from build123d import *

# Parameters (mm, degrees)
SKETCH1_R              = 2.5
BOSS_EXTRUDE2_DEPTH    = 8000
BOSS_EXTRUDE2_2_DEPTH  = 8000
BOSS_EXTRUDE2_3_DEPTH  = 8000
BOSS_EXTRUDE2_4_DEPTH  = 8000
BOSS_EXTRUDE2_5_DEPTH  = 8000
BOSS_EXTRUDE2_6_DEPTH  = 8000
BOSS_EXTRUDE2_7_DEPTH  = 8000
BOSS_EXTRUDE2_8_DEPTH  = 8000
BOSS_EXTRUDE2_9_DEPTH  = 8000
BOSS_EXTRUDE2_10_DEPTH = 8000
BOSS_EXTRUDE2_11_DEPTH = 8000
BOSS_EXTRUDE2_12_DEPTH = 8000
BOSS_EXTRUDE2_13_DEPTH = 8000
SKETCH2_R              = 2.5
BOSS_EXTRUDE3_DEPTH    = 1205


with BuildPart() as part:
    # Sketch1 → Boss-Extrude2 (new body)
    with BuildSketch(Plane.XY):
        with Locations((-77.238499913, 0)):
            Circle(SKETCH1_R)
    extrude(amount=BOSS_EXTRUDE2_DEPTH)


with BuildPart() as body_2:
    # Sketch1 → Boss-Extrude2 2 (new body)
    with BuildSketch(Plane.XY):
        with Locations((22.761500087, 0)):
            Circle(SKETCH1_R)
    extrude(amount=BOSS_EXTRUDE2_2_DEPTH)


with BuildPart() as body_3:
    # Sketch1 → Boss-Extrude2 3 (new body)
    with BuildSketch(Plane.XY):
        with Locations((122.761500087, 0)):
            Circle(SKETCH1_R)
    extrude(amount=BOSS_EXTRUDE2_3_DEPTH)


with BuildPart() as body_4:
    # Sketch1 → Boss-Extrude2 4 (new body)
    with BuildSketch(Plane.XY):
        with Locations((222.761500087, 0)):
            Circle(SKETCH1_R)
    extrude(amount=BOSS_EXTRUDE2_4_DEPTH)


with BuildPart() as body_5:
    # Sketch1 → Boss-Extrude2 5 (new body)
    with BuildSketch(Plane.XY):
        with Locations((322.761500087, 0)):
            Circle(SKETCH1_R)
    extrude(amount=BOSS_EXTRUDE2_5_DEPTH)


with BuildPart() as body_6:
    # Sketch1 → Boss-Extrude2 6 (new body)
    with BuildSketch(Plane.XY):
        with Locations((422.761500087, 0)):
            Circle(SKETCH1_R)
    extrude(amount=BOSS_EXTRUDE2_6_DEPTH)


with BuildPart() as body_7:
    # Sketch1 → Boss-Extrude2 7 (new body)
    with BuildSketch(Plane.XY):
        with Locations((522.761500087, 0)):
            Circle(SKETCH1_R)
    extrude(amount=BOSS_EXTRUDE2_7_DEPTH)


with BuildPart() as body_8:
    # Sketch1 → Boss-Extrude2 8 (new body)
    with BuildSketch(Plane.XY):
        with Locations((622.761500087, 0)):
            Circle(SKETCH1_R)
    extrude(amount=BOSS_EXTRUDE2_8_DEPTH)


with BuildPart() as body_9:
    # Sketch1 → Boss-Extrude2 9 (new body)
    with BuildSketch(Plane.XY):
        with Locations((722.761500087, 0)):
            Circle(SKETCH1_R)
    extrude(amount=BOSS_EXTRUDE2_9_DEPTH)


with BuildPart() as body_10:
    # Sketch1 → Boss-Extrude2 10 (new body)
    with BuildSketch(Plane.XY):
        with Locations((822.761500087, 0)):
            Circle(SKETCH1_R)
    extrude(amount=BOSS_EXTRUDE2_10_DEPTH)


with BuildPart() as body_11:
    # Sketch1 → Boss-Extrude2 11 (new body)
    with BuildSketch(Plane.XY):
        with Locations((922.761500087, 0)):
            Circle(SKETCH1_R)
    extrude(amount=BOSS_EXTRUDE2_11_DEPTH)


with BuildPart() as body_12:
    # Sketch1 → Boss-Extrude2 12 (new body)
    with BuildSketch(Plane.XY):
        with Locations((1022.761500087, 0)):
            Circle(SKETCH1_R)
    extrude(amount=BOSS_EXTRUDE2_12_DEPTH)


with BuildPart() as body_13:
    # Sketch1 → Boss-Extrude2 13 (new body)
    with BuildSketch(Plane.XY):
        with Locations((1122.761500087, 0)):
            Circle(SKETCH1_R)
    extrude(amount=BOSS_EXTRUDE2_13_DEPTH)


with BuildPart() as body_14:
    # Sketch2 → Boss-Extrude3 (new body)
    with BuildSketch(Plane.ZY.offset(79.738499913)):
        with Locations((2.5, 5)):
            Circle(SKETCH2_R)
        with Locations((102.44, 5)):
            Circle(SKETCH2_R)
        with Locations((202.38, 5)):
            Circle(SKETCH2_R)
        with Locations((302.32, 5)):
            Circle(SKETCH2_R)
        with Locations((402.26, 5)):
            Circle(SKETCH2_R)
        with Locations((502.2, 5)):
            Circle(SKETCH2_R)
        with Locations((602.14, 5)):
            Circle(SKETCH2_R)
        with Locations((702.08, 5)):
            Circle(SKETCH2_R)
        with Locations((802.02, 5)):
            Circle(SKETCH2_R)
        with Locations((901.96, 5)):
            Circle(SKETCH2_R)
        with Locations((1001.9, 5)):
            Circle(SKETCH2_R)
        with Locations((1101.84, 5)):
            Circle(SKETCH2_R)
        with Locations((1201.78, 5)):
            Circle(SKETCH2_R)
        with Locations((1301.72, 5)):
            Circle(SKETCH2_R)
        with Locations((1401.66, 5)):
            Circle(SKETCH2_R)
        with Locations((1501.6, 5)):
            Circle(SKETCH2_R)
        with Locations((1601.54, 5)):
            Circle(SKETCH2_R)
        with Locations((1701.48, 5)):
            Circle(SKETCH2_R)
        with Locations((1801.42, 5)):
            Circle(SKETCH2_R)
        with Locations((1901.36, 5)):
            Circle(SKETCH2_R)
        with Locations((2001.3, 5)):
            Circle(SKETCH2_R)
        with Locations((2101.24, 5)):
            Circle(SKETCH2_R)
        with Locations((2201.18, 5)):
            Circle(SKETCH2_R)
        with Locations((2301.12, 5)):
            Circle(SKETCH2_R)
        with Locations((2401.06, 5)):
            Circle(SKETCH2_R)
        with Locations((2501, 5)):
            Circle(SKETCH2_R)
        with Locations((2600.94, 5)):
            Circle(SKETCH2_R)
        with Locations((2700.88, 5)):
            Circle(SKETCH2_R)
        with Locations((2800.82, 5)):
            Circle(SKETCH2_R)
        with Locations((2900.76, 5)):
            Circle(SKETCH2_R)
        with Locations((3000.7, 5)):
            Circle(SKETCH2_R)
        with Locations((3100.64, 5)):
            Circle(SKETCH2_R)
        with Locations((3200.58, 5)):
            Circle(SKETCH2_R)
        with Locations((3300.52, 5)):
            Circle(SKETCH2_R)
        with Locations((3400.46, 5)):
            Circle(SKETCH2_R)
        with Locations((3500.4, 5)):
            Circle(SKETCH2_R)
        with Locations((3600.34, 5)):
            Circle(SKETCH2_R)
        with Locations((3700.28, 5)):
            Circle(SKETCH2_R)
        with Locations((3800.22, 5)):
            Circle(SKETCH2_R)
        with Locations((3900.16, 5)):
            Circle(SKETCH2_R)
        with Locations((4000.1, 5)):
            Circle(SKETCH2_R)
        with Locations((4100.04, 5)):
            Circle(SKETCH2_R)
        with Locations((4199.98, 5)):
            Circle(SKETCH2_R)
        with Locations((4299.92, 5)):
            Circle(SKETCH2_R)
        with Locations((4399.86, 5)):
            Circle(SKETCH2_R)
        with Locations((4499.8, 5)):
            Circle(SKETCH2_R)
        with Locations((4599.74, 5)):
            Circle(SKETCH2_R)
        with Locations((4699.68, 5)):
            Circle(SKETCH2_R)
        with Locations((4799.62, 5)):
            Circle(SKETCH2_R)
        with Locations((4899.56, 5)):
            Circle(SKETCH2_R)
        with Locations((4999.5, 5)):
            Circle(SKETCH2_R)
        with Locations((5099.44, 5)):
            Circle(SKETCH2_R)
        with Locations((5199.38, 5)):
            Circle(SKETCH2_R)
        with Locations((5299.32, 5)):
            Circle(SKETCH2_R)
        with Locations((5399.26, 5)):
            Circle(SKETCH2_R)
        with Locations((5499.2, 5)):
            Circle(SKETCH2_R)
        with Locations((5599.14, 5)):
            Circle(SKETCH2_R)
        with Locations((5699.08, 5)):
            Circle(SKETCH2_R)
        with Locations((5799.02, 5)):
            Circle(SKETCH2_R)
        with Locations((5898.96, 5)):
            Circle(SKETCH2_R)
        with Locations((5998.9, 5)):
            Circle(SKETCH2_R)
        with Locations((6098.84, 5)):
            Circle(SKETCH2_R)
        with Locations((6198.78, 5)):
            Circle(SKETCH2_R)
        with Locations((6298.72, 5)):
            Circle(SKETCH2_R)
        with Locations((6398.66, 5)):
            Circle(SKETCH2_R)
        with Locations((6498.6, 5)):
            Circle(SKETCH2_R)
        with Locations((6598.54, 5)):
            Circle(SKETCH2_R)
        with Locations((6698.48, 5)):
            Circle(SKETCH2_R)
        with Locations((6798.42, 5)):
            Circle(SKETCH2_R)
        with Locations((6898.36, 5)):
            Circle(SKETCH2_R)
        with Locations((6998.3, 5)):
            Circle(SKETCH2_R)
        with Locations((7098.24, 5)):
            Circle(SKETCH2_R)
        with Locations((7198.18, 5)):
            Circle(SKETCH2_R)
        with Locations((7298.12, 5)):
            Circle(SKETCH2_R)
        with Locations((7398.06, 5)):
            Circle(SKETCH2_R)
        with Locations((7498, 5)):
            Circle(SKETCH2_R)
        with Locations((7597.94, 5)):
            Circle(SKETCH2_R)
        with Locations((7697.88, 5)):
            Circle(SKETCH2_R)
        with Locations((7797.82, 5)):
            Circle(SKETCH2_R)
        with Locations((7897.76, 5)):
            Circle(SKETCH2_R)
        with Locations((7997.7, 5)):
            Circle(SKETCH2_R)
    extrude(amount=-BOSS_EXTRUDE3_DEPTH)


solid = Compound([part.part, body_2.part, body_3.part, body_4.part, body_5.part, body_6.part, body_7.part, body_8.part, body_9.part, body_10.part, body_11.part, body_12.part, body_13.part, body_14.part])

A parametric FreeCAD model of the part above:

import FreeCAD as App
import Part
import Sketcher

V = App.Vector

doc = App.newDocument("Part")
body = doc.addObject("PartDesign::Body", "Body")

# Sketch on XY plane
sketch1 = doc.addObject("Sketcher::SketchObject", "Sketch")
body.addObject(sketch1)
sketch1.AttachmentSupport = (doc.XY_Plane, [""])
sketch1.MapMode = "FlatFace"
sketch1.addGeometry(Part.Circle(V(-77.2, 0, 0), V(0, 0, 1), 2.5), False)
sketch1.addConstraint([
    Sketcher.Constraint("PointOnObject", 0, 3, -1),
    Sketcher.Constraint("Diameter", 0, 5.0),
    Sketcher.Constraint("DistanceX", 0, 3, -1, 1, 77.2385),
])
pad1 = doc.addObject("PartDesign::Pad", "Pad")
body.addObject(pad1)
pad1.Profile = sketch1
pad1.Length = 8000
body2 = doc.addObject("PartDesign::Body", "Body001")

# Sketch on XY plane
sketch2 = doc.addObject("Sketcher::SketchObject", "Sketch001")
body2.addObject(sketch2)
sketch2.AttachmentSupport = (doc.getObject("XY_Plane001"), [""])
sketch2.MapMode = "FlatFace"
sketch2.addGeometry(Part.Circle(V(22.8, 0, 0), V(0, 0, 1), 2.5), False)
sketch2.addConstraint([
    Sketcher.Constraint("PointOnObject", 0, 3, -1),
    Sketcher.Constraint("Diameter", 0, 5.0),
    Sketcher.Constraint("DistanceX", -1, 1, 0, 3, 22.7615),
])
pad2 = doc.addObject("PartDesign::Pad", "Pad001")
body2.addObject(pad2)
pad2.Profile = sketch2
pad2.Length = 8000
body3 = doc.addObject("PartDesign::Body", "Body002")

# Sketch on XY plane
sketch3 = doc.addObject("Sketcher::SketchObject", "Sketch002")
body3.addObject(sketch3)
sketch3.AttachmentSupport = (doc.getObject("XY_Plane002"), [""])
sketch3.MapMode = "FlatFace"
sketch3.addGeometry(Part.Circle(V(122.8, 0, 0), V(0, 0, 1), 2.5), False)
sketch3.addConstraint([
    Sketcher.Constraint("PointOnObject", 0, 3, -1),
    Sketcher.Constraint("Diameter", 0, 5.0),
    Sketcher.Constraint("DistanceX", -1, 1, 0, 3, 122.7615),
])
pad3 = doc.addObject("PartDesign::Pad", "Pad002")
body3.addObject(pad3)
pad3.Profile = sketch3
pad3.Length = 8000
body4 = doc.addObject("PartDesign::Body", "Body003")

# Sketch on XY plane
sketch4 = doc.addObject("Sketcher::SketchObject", "Sketch003")
body4.addObject(sketch4)
sketch4.AttachmentSupport = (doc.getObject("XY_Plane003"), [""])
sketch4.MapMode = "FlatFace"
sketch4.addGeometry(Part.Circle(V(222.8, 0, 0), V(0, 0, 1), 2.5), False)
sketch4.addConstraint([
    Sketcher.Constraint("PointOnObject", 0, 3, -1),
    Sketcher.Constraint("Diameter", 0, 5.0),
    Sketcher.Constraint("DistanceX", -1, 1, 0, 3, 222.7615),
])
pad4 = doc.addObject("PartDesign::Pad", "Pad003")
body4.addObject(pad4)
pad4.Profile = sketch4
pad4.Length = 8000
body5 = doc.addObject("PartDesign::Body", "Body004")

# Sketch on XY plane
sketch5 = doc.addObject("Sketcher::SketchObject", "Sketch004")
body5.addObject(sketch5)
sketch5.AttachmentSupport = (doc.getObject("XY_Plane004"), [""])
sketch5.MapMode = "FlatFace"
sketch5.addGeometry(Part.Circle(V(322.8, 0, 0), V(0, 0, 1), 2.5), False)
sketch5.addConstraint([
    Sketcher.Constraint("PointOnObject", 0, 3, -1),
    Sketcher.Constraint("Diameter", 0, 5.0),
    Sketcher.Constraint("DistanceX", -1, 1, 0, 3, 322.7615),
])
pad5 = doc.addObject("PartDesign::Pad", "Pad004")
body5.addObject(pad5)
pad5.Profile = sketch5
pad5.Length = 8000
body6 = doc.addObject("PartDesign::Body", "Body005")

# Sketch on XY plane
sketch6 = doc.addObject("Sketcher::SketchObject", "Sketch005")
body6.addObject(sketch6)
sketch6.AttachmentSupport = (doc.getObject("XY_Plane005"), [""])
sketch6.MapMode = "FlatFace"
sketch6.addGeometry(Part.Circle(V(422.8, 0, 0), V(0, 0, 1), 2.5), False)
sketch6.addConstraint([
    Sketcher.Constraint("PointOnObject", 0, 3, -1),
    Sketcher.Constraint("Diameter", 0, 5.0),
    Sketcher.Constraint("DistanceX", -1, 1, 0, 3, 422.7615),
])
pad6 = doc.addObject("PartDesign::Pad", "Pad005")
body6.addObject(pad6)
pad6.Profile = sketch6
pad6.Length = 8000
body7 = doc.addObject("PartDesign::Body", "Body006")

# Sketch on XY plane
sketch7 = doc.addObject("Sketcher::SketchObject", "Sketch006")
body7.addObject(sketch7)
sketch7.AttachmentSupport = (doc.getObject("XY_Plane006"), [""])
sketch7.MapMode = "FlatFace"
sketch7.addGeometry(Part.Circle(V(522.8, 0, 0), V(0, 0, 1), 2.5), False)
sketch7.addConstraint([
    Sketcher.Constraint("PointOnObject", 0, 3, -1),
    Sketcher.Constraint("Diameter", 0, 5.0),
    Sketcher.Constraint("DistanceX", -1, 1, 0, 3, 522.7615),
])
pad7 = doc.addObject("PartDesign::Pad", "Pad006")
body7.addObject(pad7)
pad7.Profile = sketch7
pad7.Length = 8000
body8 = doc.addObject("PartDesign::Body", "Body007")

# Sketch on XY plane
sketch8 = doc.addObject("Sketcher::SketchObject", "Sketch007")
body8.addObject(sketch8)
sketch8.AttachmentSupport = (doc.getObject("XY_Plane007"), [""])
sketch8.MapMode = "FlatFace"
sketch8.addGeometry(Part.Circle(V(622.8, 0, 0), V(0, 0, 1), 2.5), False)
sketch8.addConstraint([
    Sketcher.Constraint("PointOnObject", 0, 3, -1),
    Sketcher.Constraint("Diameter", 0, 5.0),
    Sketcher.Constraint("DistanceX", -1, 1, 0, 3, 622.7615),
])
pad8 = doc.addObject("PartDesign::Pad", "Pad007")
body8.addObject(pad8)
pad8.Profile = sketch8
pad8.Length = 8000
body9 = doc.addObject("PartDesign::Body", "Body008")

# Sketch on XY plane
sketch9 = doc.addObject("Sketcher::SketchObject", "Sketch008")
body9.addObject(sketch9)
sketch9.AttachmentSupport = (doc.getObject("XY_Plane008"), [""])
sketch9.MapMode = "FlatFace"
sketch9.addGeometry(Part.Circle(V(722.8, 0, 0), V(0, 0, 1), 2.5), False)
sketch9.addConstraint([
    Sketcher.Constraint("PointOnObject", 0, 3, -1),
    Sketcher.Constraint("Diameter", 0, 5.0),
    Sketcher.Constraint("DistanceX", -1, 1, 0, 3, 722.7615),
])
pad9 = doc.addObject("PartDesign::Pad", "Pad008")
body9.addObject(pad9)
pad9.Profile = sketch9
pad9.Length = 8000
body10 = doc.addObject("PartDesign::Body", "Body009")

# Sketch on XY plane
sketch10 = doc.addObject("Sketcher::SketchObject", "Sketch009")
body10.addObject(sketch10)
sketch10.AttachmentSupport = (doc.getObject("XY_Plane009"), [""])
sketch10.MapMode = "FlatFace"
sketch10.addGeometry(Part.Circle(V(822.8, 0, 0), V(0, 0, 1), 2.5), False)
sketch10.addConstraint([
    Sketcher.Constraint("PointOnObject", 0, 3, -1),
    Sketcher.Constraint("Diameter", 0, 5.0),
    Sketcher.Constraint("DistanceX", -1, 1, 0, 3, 822.7615),
])
pad10 = doc.addObject("PartDesign::Pad", "Pad009")
body10.addObject(pad10)
pad10.Profile = sketch10
pad10.Length = 8000
body11 = doc.addObject("PartDesign::Body", "Body010")

# Sketch on XY plane
sketch11 = doc.addObject("Sketcher::SketchObject", "Sketch010")
body11.addObject(sketch11)
sketch11.AttachmentSupport = (doc.getObject("XY_Plane010"), [""])
sketch11.MapMode = "FlatFace"
sketch11.addGeometry(Part.Circle(V(922.8, 0, 0), V(0, 0, 1), 2.5), False)
sketch11.addConstraint([
    Sketcher.Constraint("PointOnObject", 0, 3, -1),
    Sketcher.Constraint("Diameter", 0, 5.0),
    Sketcher.Constraint("DistanceX", -1, 1, 0, 3, 922.7615),
])
pad11 = doc.addObject("PartDesign::Pad", "Pad010")
body11.addObject(pad11)
pad11.Profile = sketch11
pad11.Length = 8000
body12 = doc.addObject("PartDesign::Body", "Body011")

# Sketch on XY plane
sketch12 = doc.addObject("Sketcher::SketchObject", "Sketch011")
body12.addObject(sketch12)
sketch12.AttachmentSupport = (doc.getObject("XY_Plane011"), [""])
sketch12.MapMode = "FlatFace"
sketch12.addGeometry(Part.Circle(V(1022.8, 0, 0), V(0, 0, 1), 2.5), False)
sketch12.addConstraint([
    Sketcher.Constraint("PointOnObject", 0, 3, -1),
    Sketcher.Constraint("Diameter", 0, 5.0),
    Sketcher.Constraint("DistanceX", -1, 1, 0, 3, 1022.7615),
])
pad12 = doc.addObject("PartDesign::Pad", "Pad011")
body12.addObject(pad12)
pad12.Profile = sketch12
pad12.Length = 8000
body13 = doc.addObject("PartDesign::Body", "Body012")

# Sketch on XY plane
sketch13 = doc.addObject("Sketcher::SketchObject", "Sketch012")
body13.addObject(sketch13)
sketch13.AttachmentSupport = (doc.getObject("XY_Plane012"), [""])
sketch13.MapMode = "FlatFace"
sketch13.addGeometry(Part.Circle(V(1122.8, 0, 0), V(0, 0, 1), 2.5), False)
sketch13.addConstraint([
    Sketcher.Constraint("PointOnObject", 0, 3, -1),
    Sketcher.Constraint("Diameter", 0, 5.0),
    Sketcher.Constraint("DistanceX", -1, 1, 0, 3, 1122.7615),
])
pad13 = doc.addObject("PartDesign::Pad", "Pad012")
body13.addObject(pad13)
pad13.Profile = sketch13
pad13.Length = 8000
body14 = doc.addObject("PartDesign::Body", "Body013")
body14.AllowCompound = True

# Sketch on YZ plane
sketch14 = doc.addObject("Sketcher::SketchObject", "Sketch013")
body14.addObject(sketch14)
sketch14.AttachmentSupport = (doc.getObject("YZ_Plane013"), [""])
sketch14.MapMode = "FlatFace"
sketch14.AttachmentOffset = App.Placement(V(0, 0, -79.7385), App.Rotation())
sketch14.addGeometry([
    Part.Circle(V(5, 2.5, 0), V(0, 0, 1), 2.5),  # 0
    Part.Circle(V(5, 102.4, 0), V(0, 0, 1), 2.5),  # 1
    Part.Circle(V(5, 202.4, 0), V(0, 0, 1), 2.5),  # 2
    Part.Circle(V(5, 302.3, 0), V(0, 0, 1), 2.5),  # 3
    Part.Circle(V(5, 402.3, 0), V(0, 0, 1), 2.5),  # 4
    Part.Circle(V(5, 502.2, 0), V(0, 0, 1), 2.5),  # 5
    Part.Circle(V(5, 602.1, 0), V(0, 0, 1), 2.5),  # 6
    Part.Circle(V(5, 702.1, 0), V(0, 0, 1), 2.5),  # 7
    Part.Circle(V(5, 802, 0), V(0, 0, 1), 2.5),  # 8
    Part.Circle(V(5, 902, 0), V(0, 0, 1), 2.5),  # 9
    Part.Circle(V(5, 1001.9, 0), V(0, 0, 1), 2.5),  # 10
    Part.Circle(V(5, 1101.8, 0), V(0, 0, 1), 2.5),  # 11
    Part.Circle(V(5, 1201.8, 0), V(0, 0, 1), 2.5),  # 12
    Part.Circle(V(5, 1301.7, 0), V(0, 0, 1), 2.5),  # 13
    Part.Circle(V(5, 1401.7, 0), V(0, 0, 1), 2.5),  # 14
    Part.Circle(V(5, 1501.6, 0), V(0, 0, 1), 2.5),  # 15
    Part.Circle(V(5, 1601.5, 0), V(0, 0, 1), 2.5),  # 16
    Part.Circle(V(5, 1701.5, 0), V(0, 0, 1), 2.5),  # 17
    Part.Circle(V(5, 1801.4, 0), V(0, 0, 1), 2.5),  # 18
    Part.Circle(V(5, 1901.4, 0), V(0, 0, 1), 2.5),  # 19
    Part.Circle(V(5, 2001.3, 0), V(0, 0, 1), 2.5),  # 20
    Part.Circle(V(5, 2101.2, 0), V(0, 0, 1), 2.5),  # 21
    Part.Circle(V(5, 2201.2, 0), V(0, 0, 1), 2.5),  # 22
    Part.Circle(V(5, 2301.1, 0), V(0, 0, 1), 2.5),  # 23
    Part.Circle(V(5, 2401.1, 0), V(0, 0, 1), 2.5),  # 24
    Part.Circle(V(5, 2501, 0), V(0, 0, 1), 2.5),  # 25
    Part.Circle(V(5, 2600.9, 0), V(0, 0, 1), 2.5),  # 26
    Part.Circle(V(5, 2700.9, 0), V(0, 0, 1), 2.5),  # 27
    Part.Circle(V(5, 2800.8, 0), V(0, 0, 1), 2.5),  # 28
    Part.Circle(V(5, 2900.8, 0), V(0, 0, 1), 2.5),  # 29
    Part.Circle(V(5, 3000.7, 0), V(0, 0, 1), 2.5),  # 30
    Part.Circle(V(5, 3100.6, 0), V(0, 0, 1), 2.5),  # 31
    Part.Circle(V(5, 3200.6, 0), V(0, 0, 1), 2.5),  # 32
    Part.Circle(V(5, 3300.5, 0), V(0, 0, 1), 2.5),  # 33
    Part.Circle(V(5, 3400.5, 0), V(0, 0, 1), 2.5),  # 34
    Part.Circle(V(5, 3500.4, 0), V(0, 0, 1), 2.5),  # 35
    Part.Circle(V(5, 3600.3, 0), V(0, 0, 1), 2.5),  # 36
    Part.Circle(V(5, 3700.3, 0), V(0, 0, 1), 2.5),  # 37
    Part.Circle(V(5, 3800.2, 0), V(0, 0, 1), 2.5),  # 38
    Part.Circle(V(5, 3900.2, 0), V(0, 0, 1), 2.5),  # 39
    Part.Circle(V(5, 4000.1, 0), V(0, 0, 1), 2.5),  # 40
    Part.Circle(V(5, 4100, 0), V(0, 0, 1), 2.5),  # 41
    Part.Circle(V(5, 4200, 0), V(0, 0, 1), 2.5),  # 42
    Part.Circle(V(5, 4299.9, 0), V(0, 0, 1), 2.5),  # 43
    Part.Circle(V(5, 4399.9, 0), V(0, 0, 1), 2.5),  # 44
    Part.Circle(V(5, 4499.8, 0), V(0, 0, 1), 2.5),  # 45
    Part.Circle(V(5, 4599.7, 0), V(0, 0, 1), 2.5),  # 46
    Part.Circle(V(5, 4699.7, 0), V(0, 0, 1), 2.5),  # 47
    Part.Circle(V(5, 4799.6, 0), V(0, 0, 1), 2.5),  # 48
    Part.Circle(V(5, 4899.6, 0), V(0, 0, 1), 2.5),  # 49
    Part.Circle(V(5, 4999.5, 0), V(0, 0, 1), 2.5),  # 50
    Part.Circle(V(5, 5099.4, 0), V(0, 0, 1), 2.5),  # 51
    Part.Circle(V(5, 5199.4, 0), V(0, 0, 1), 2.5),  # 52
    Part.Circle(V(5, 5299.3, 0), V(0, 0, 1), 2.5),  # 53
    Part.Circle(V(5, 5399.3, 0), V(0, 0, 1), 2.5),  # 54
    Part.Circle(V(5, 5499.2, 0), V(0, 0, 1), 2.5),  # 55
    Part.Circle(V(5, 5599.1, 0), V(0, 0, 1), 2.5),  # 56
    Part.Circle(V(5, 5699.1, 0), V(0, 0, 1), 2.5),  # 57
    Part.Circle(V(5, 5799, 0), V(0, 0, 1), 2.5),  # 58
    Part.Circle(V(5, 5899, 0), V(0, 0, 1), 2.5),  # 59
    Part.Circle(V(5, 5998.9, 0), V(0, 0, 1), 2.5),  # 60
    Part.Circle(V(5, 6098.8, 0), V(0, 0, 1), 2.5),  # 61
    Part.Circle(V(5, 6198.8, 0), V(0, 0, 1), 2.5),  # 62
    Part.Circle(V(5, 6298.7, 0), V(0, 0, 1), 2.5),  # 63
    Part.Circle(V(5, 6398.7, 0), V(0, 0, 1), 2.5),  # 64
    Part.Circle(V(5, 6498.6, 0), V(0, 0, 1), 2.5),  # 65
    Part.Circle(V(5, 6598.5, 0), V(0, 0, 1), 2.5),  # 66
    Part.Circle(V(5, 6698.5, 0), V(0, 0, 1), 2.5),  # 67
    Part.Circle(V(5, 6798.4, 0), V(0, 0, 1), 2.5),  # 68
    Part.Circle(V(5, 6898.4, 0), V(0, 0, 1), 2.5),  # 69
    Part.Circle(V(5, 6998.3, 0), V(0, 0, 1), 2.5),  # 70
    Part.Circle(V(5, 7098.2, 0), V(0, 0, 1), 2.5),  # 71
    Part.Circle(V(5, 7198.2, 0), V(0, 0, 1), 2.5),  # 72
    Part.Circle(V(5, 7298.1, 0), V(0, 0, 1), 2.5),  # 73
    Part.Circle(V(5, 7398.1, 0), V(0, 0, 1), 2.5),  # 74
    Part.Circle(V(5, 7498, 0), V(0, 0, 1), 2.5),  # 75
    Part.Circle(V(5, 7597.9, 0), V(0, 0, 1), 2.5),  # 76
    Part.Circle(V(5, 7697.9, 0), V(0, 0, 1), 2.5),  # 77
    Part.Circle(V(5, 7797.8, 0), V(0, 0, 1), 2.5),  # 78
    Part.Circle(V(5, 7897.8, 0), V(0, 0, 1), 2.5),  # 79
    Part.Circle(V(5, 7997.7, 0), V(0, 0, 1), 2.5),  # 80
], False)
sketch14.addConstraint([
    Sketcher.Constraint("Equal", 0, 1),
    Sketcher.Constraint("Equal", 1, 2),
    Sketcher.Constraint("Equal", 2, 3),
    Sketcher.Constraint("Equal", 3, 4),
    Sketcher.Constraint("Equal", 4, 5),
    Sketcher.Constraint("Equal", 5, 6),
    Sketcher.Constraint("Equal", 6, 7),
    Sketcher.Constraint("Equal", 7, 8),
    Sketcher.Constraint("Equal", 8, 9),
    Sketcher.Constraint("Equal", 9, 10),
    Sketcher.Constraint("Equal", 10, 11),
    Sketcher.Constraint("Equal", 11, 12),
    Sketcher.Constraint("Equal", 12, 13),
    Sketcher.Constraint("Equal", 13, 14),
    Sketcher.Constraint("Equal", 14, 15),
    Sketcher.Constraint("Equal", 15, 16),
    Sketcher.Constraint("Equal", 16, 17),
    Sketcher.Constraint("Equal", 17, 18),
    Sketcher.Constraint("Equal", 18, 19),
    Sketcher.Constraint("Equal", 19, 20),
    Sketcher.Constraint("Equal", 20, 21),
    Sketcher.Constraint("Equal", 21, 22),
    Sketcher.Constraint("Equal", 22, 23),
    Sketcher.Constraint("Equal", 23, 24),
    Sketcher.Constraint("Equal", 24, 25),
    Sketcher.Constraint("Equal", 25, 26),
    Sketcher.Constraint("Equal", 26, 27),
    Sketcher.Constraint("Equal", 27, 28),
    Sketcher.Constraint("Equal", 28, 29),
    Sketcher.Constraint("Equal", 29, 30),
    Sketcher.Constraint("Equal", 30, 31),
    Sketcher.Constraint("Equal", 31, 32),
    Sketcher.Constraint("Equal", 32, 33),
    Sketcher.Constraint("Equal", 33, 34),
    Sketcher.Constraint("Equal", 34, 35),
    Sketcher.Constraint("Equal", 35, 36),
    Sketcher.Constraint("Equal", 36, 37),
    Sketcher.Constraint("Equal", 37, 38),
    Sketcher.Constraint("Equal", 38, 39),
    Sketcher.Constraint("Equal", 39, 40),
    Sketcher.Constraint("Equal", 40, 41),
    Sketcher.Constraint("Equal", 41, 42),
    Sketcher.Constraint("Equal", 42, 43),
    Sketcher.Constraint("Equal", 43, 44),
    Sketcher.Constraint("Equal", 44, 45),
    Sketcher.Constraint("Equal", 45, 46),
    Sketcher.Constraint("Equal", 46, 47),
    Sketcher.Constraint("Equal", 47, 48),
    Sketcher.Constraint("Equal", 48, 49),
    Sketcher.Constraint("Equal", 49, 50),
    Sketcher.Constraint("Equal", 50, 51),
    Sketcher.Constraint("Equal", 51, 52),
    Sketcher.Constraint("Equal", 52, 53),
    Sketcher.Constraint("Equal", 53, 54),
    Sketcher.Constraint("Equal", 54, 55),
    Sketcher.Constraint("Equal", 55, 56),
    Sketcher.Constraint("Equal", 56, 57),
    Sketcher.Constraint("Equal", 57, 58),
    Sketcher.Constraint("Equal", 58, 59),
    Sketcher.Constraint("Equal", 59, 60),
    Sketcher.Constraint("Equal", 60, 61),
    Sketcher.Constraint("Equal", 61, 62),
    Sketcher.Constraint("Equal", 62, 63),
    Sketcher.Constraint("Equal", 63, 64),
    Sketcher.Constraint("Equal", 64, 65),
    Sketcher.Constraint("Equal", 65, 66),
    Sketcher.Constraint("Equal", 66, 67),
    Sketcher.Constraint("Equal", 67, 68),
    Sketcher.Constraint("Equal", 68, 69),
    Sketcher.Constraint("Equal", 69, 70),
    Sketcher.Constraint("Equal", 70, 71),
    Sketcher.Constraint("Equal", 71, 72),
    Sketcher.Constraint("Equal", 72, 73),
    Sketcher.Constraint("Equal", 73, 74),
    Sketcher.Constraint("Equal", 74, 75),
    Sketcher.Constraint("Equal", 75, 76),
    Sketcher.Constraint("Equal", 76, 77),
    Sketcher.Constraint("Equal", 77, 78),
    Sketcher.Constraint("Equal", 78, 79),
    Sketcher.Constraint("Equal", 79, 80),
    Sketcher.Constraint("Vertical", 0, 3, 1, 3),
    Sketcher.Constraint("Vertical", 1, 3, 2, 3),
    Sketcher.Constraint("Vertical", 2, 3, 3, 3),
    Sketcher.Constraint("Vertical", 3, 3, 4, 3),
    Sketcher.Constraint("Vertical", 4, 3, 5, 3),
    Sketcher.Constraint("Vertical", 5, 3, 6, 3),
    Sketcher.Constraint("Vertical", 6, 3, 7, 3),
    Sketcher.Constraint("Vertical", 7, 3, 8, 3),
    Sketcher.Constraint("Vertical", 8, 3, 9, 3),
    Sketcher.Constraint("Vertical", 9, 3, 10, 3),
    Sketcher.Constraint("Vertical", 10, 3, 11, 3),
    Sketcher.Constraint("Vertical", 11, 3, 12, 3),
    Sketcher.Constraint("Vertical", 12, 3, 13, 3),
    Sketcher.Constraint("Vertical", 13, 3, 14, 3),
    Sketcher.Constraint("Vertical", 14, 3, 15, 3),
    Sketcher.Constraint("Vertical", 15, 3, 16, 3),
    Sketcher.Constraint("Vertical", 16, 3, 17, 3),
    Sketcher.Constraint("Vertical", 17, 3, 18, 3),
    Sketcher.Constraint("Vertical", 18, 3, 19, 3),
    Sketcher.Constraint("Vertical", 19, 3, 20, 3),
    Sketcher.Constraint("Vertical", 20, 3, 21, 3),
    Sketcher.Constraint("Vertical", 21, 3, 22, 3),
    Sketcher.Constraint("Vertical", 22, 3, 23, 3),
    Sketcher.Constraint("Vertical", 23, 3, 24, 3),
    Sketcher.Constraint("Vertical", 24, 3, 25, 3),
    Sketcher.Constraint("Vertical", 25, 3, 26, 3),
    Sketcher.Constraint("Vertical", 26, 3, 27, 3),
    Sketcher.Constraint("Vertical", 27, 3, 28, 3),
    Sketcher.Constraint("Vertical", 28, 3, 29, 3),
    Sketcher.Constraint("Vertical", 29, 3, 30, 3),
    Sketcher.Constraint("Vertical", 30, 3, 31, 3),
    Sketcher.Constraint("Vertical", 31, 3, 32, 3),
    Sketcher.Constraint("Vertical", 32, 3, 33, 3),
    Sketcher.Constraint("Vertical", 33, 3, 34, 3),
    Sketcher.Constraint("Vertical", 34, 3, 35, 3),
    Sketcher.Constraint("Vertical", 35, 3, 36, 3),
    Sketcher.Constraint("Vertical", 36, 3, 37, 3),
    Sketcher.Constraint("Vertical", 37, 3, 38, 3),
    Sketcher.Constraint("Vertical", 38, 3, 39, 3),
    Sketcher.Constraint("Vertical", 39, 3, 40, 3),
    Sketcher.Constraint("Vertical", 40, 3, 41, 3),
    Sketcher.Constraint("Vertical", 41, 3, 42, 3),
    Sketcher.Constraint("Vertical", 42, 3, 43, 3),
    Sketcher.Constraint("Vertical", 43, 3, 44, 3),
    Sketcher.Constraint("Vertical", 44, 3, 45, 3),
    Sketcher.Constraint("Vertical", 45, 3, 46, 3),
    Sketcher.Constraint("Vertical", 46, 3, 47, 3),
    Sketcher.Constraint("Vertical", 47, 3, 48, 3),
    Sketcher.Constraint("Vertical", 48, 3, 49, 3),
    Sketcher.Constraint("Vertical", 49, 3, 50, 3),
    Sketcher.Constraint("Vertical", 50, 3, 51, 3),
    Sketcher.Constraint("Vertical", 51, 3, 52, 3),
    Sketcher.Constraint("Vertical", 52, 3, 53, 3),
    Sketcher.Constraint("Vertical", 53, 3, 54, 3),
    Sketcher.Constraint("Vertical", 54, 3, 55, 3),
    Sketcher.Constraint("Vertical", 55, 3, 56, 3),
    Sketcher.Constraint("Vertical", 56, 3, 57, 3),
    Sketcher.Constraint("Vertical", 57, 3, 58, 3),
    Sketcher.Constraint("Vertical", 58, 3, 59, 3),
    Sketcher.Constraint("Vertical", 59, 3, 60, 3),
    Sketcher.Constraint("Vertical", 60, 3, 61, 3),
    Sketcher.Constraint("Vertical", 61, 3, 62, 3),
    Sketcher.Constraint("Vertical", 62, 3, 63, 3),
    Sketcher.Constraint("Vertical", 63, 3, 64, 3),
    Sketcher.Constraint("Vertical", 64, 3, 65, 3),
    Sketcher.Constraint("Vertical", 65, 3, 66, 3),
    Sketcher.Constraint("Vertical", 66, 3, 67, 3),
    Sketcher.Constraint("Vertical", 67, 3, 68, 3),
    Sketcher.Constraint("Vertical", 68, 3, 69, 3),
    Sketcher.Constraint("Vertical", 69, 3, 70, 3),
    Sketcher.Constraint("Vertical", 70, 3, 71, 3),
    Sketcher.Constraint("Vertical", 71, 3, 72, 3),
    Sketcher.Constraint("Vertical", 72, 3, 73, 3),
    Sketcher.Constraint("Vertical", 73, 3, 74, 3),
    Sketcher.Constraint("Vertical", 74, 3, 75, 3),
    Sketcher.Constraint("Vertical", 75, 3, 76, 3),
    Sketcher.Constraint("Vertical", 76, 3, 77, 3),
    Sketcher.Constraint("Vertical", 77, 3, 78, 3),
    Sketcher.Constraint("Vertical", 78, 3, 79, 3),
    Sketcher.Constraint("Vertical", 79, 3, 80, 3),
    Sketcher.Constraint("Diameter", 0, 5.0),
    Sketcher.Constraint("DistanceX", -1, 1, 0, 3, 5.0),
    Sketcher.Constraint("DistanceY", -1, 1, 25, 3, 2501.0),
    Sketcher.Constraint("DistanceY", -1, 1, 75, 3, 7498.0),
    Sketcher.Constraint("DistanceY", -1, 1, 0, 3, 2.5),
    Sketcher.Constraint("DistanceY", -1, 1, 5, 3, 502.2),
    Sketcher.Constraint("DistanceY", -1, 1, 10, 3, 1001.9),
    Sketcher.Constraint("DistanceY", -1, 1, 15, 3, 1501.6),
    Sketcher.Constraint("DistanceY", -1, 1, 20, 3, 2001.3),
    Sketcher.Constraint("DistanceY", -1, 1, 30, 3, 3000.7),
    Sketcher.Constraint("DistanceY", -1, 1, 35, 3, 3500.4),
    Sketcher.Constraint("DistanceY", -1, 1, 40, 3, 4000.1),
    Sketcher.Constraint("DistanceY", -1, 1, 45, 3, 4499.8),
    Sketcher.Constraint("DistanceY", -1, 1, 50, 3, 4999.5),
    Sketcher.Constraint("DistanceY", -1, 1, 55, 3, 5499.2),
    Sketcher.Constraint("DistanceY", -1, 1, 60, 3, 5998.9),
    Sketcher.Constraint("DistanceY", -1, 1, 65, 3, 6498.6),
    Sketcher.Constraint("DistanceY", -1, 1, 70, 3, 6998.3),
    Sketcher.Constraint("DistanceY", -1, 1, 80, 3, 7997.7),
    Sketcher.Constraint("DistanceY", -1, 1, 1, 3, 102.44),
    Sketcher.Constraint("DistanceY", -1, 1, 2, 3, 202.38),
    Sketcher.Constraint("DistanceY", -1, 1, 3, 3, 302.32),
    Sketcher.Constraint("DistanceY", -1, 1, 4, 3, 402.26),
    Sketcher.Constraint("DistanceY", -1, 1, 6, 3, 602.14),
    Sketcher.Constraint("DistanceY", -1, 1, 7, 3, 702.08),
    Sketcher.Constraint("DistanceY", -1, 1, 8, 3, 802.02),
    Sketcher.Constraint("DistanceY", -1, 1, 9, 3, 901.96),
    Sketcher.Constraint("DistanceY", -1, 1, 11, 3, 1101.84),
    Sketcher.Constraint("DistanceY", -1, 1, 12, 3, 1201.78),
    Sketcher.Constraint("DistanceY", -1, 1, 13, 3, 1301.72),
    Sketcher.Constraint("DistanceY", -1, 1, 14, 3, 1401.66),
    Sketcher.Constraint("DistanceY", -1, 1, 16, 3, 1601.54),
    Sketcher.Constraint("DistanceY", -1, 1, 17, 3, 1701.48),
    Sketcher.Constraint("DistanceY", -1, 1, 18, 3, 1801.42),
    Sketcher.Constraint("DistanceY", -1, 1, 19, 3, 1901.36),
    Sketcher.Constraint("DistanceY", -1, 1, 21, 3, 2101.24),
    Sketcher.Constraint("DistanceY", -1, 1, 22, 3, 2201.18),
    Sketcher.Constraint("DistanceY", -1, 1, 23, 3, 2301.12),
    Sketcher.Constraint("DistanceY", -1, 1, 24, 3, 2401.06),
    Sketcher.Constraint("DistanceY", -1, 1, 26, 3, 2600.94),
    Sketcher.Constraint("DistanceY", -1, 1, 27, 3, 2700.88),
    Sketcher.Constraint("DistanceY", -1, 1, 28, 3, 2800.82),
    Sketcher.Constraint("DistanceY", -1, 1, 29, 3, 2900.76),
    Sketcher.Constraint("DistanceY", -1, 1, 31, 3, 3100.64),
    Sketcher.Constraint("DistanceY", -1, 1, 32, 3, 3200.58),
    Sketcher.Constraint("DistanceY", -1, 1, 33, 3, 3300.52),
    Sketcher.Constraint("DistanceY", -1, 1, 34, 3, 3400.46),
    Sketcher.Constraint("DistanceY", -1, 1, 36, 3, 3600.34),
    Sketcher.Constraint("DistanceY", -1, 1, 37, 3, 3700.28),
    Sketcher.Constraint("DistanceY", -1, 1, 38, 3, 3800.22),
    Sketcher.Constraint("DistanceY", -1, 1, 39, 3, 3900.16),
    Sketcher.Constraint("DistanceY", -1, 1, 41, 3, 4100.04),
    Sketcher.Constraint("DistanceY", -1, 1, 42, 3, 4199.98),
    Sketcher.Constraint("DistanceY", -1, 1, 43, 3, 4299.92),
    Sketcher.Constraint("DistanceY", -1, 1, 44, 3, 4399.86),
    Sketcher.Constraint("DistanceY", -1, 1, 46, 3, 4599.74),
    Sketcher.Constraint("DistanceY", -1, 1, 47, 3, 4699.68),
    Sketcher.Constraint("DistanceY", -1, 1, 48, 3, 4799.62),
    Sketcher.Constraint("DistanceY", -1, 1, 49, 3, 4899.56),
    Sketcher.Constraint("DistanceY", -1, 1, 51, 3, 5099.44),
    Sketcher.Constraint("DistanceY", -1, 1, 52, 3, 5199.38),
    Sketcher.Constraint("DistanceY", -1, 1, 53, 3, 5299.32),
    Sketcher.Constraint("DistanceY", -1, 1, 54, 3, 5399.26),
    Sketcher.Constraint("DistanceY", -1, 1, 56, 3, 5599.14),
    Sketcher.Constraint("DistanceY", -1, 1, 57, 3, 5699.08),
    Sketcher.Constraint("DistanceY", -1, 1, 58, 3, 5799.02),
    Sketcher.Constraint("DistanceY", -1, 1, 59, 3, 5898.96),
    Sketcher.Constraint("DistanceY", -1, 1, 61, 3, 6098.84),
    Sketcher.Constraint("DistanceY", -1, 1, 62, 3, 6198.78),
    Sketcher.Constraint("DistanceY", -1, 1, 63, 3, 6298.72),
    Sketcher.Constraint("DistanceY", -1, 1, 64, 3, 6398.66),
    Sketcher.Constraint("DistanceY", -1, 1, 66, 3, 6598.54),
    Sketcher.Constraint("DistanceY", -1, 1, 67, 3, 6698.48),
    Sketcher.Constraint("DistanceY", -1, 1, 68, 3, 6798.42),
    Sketcher.Constraint("DistanceY", -1, 1, 69, 3, 6898.36),
    Sketcher.Constraint("DistanceY", -1, 1, 71, 3, 7098.24),
    Sketcher.Constraint("DistanceY", -1, 1, 72, 3, 7198.18),
    Sketcher.Constraint("DistanceY", -1, 1, 73, 3, 7298.12),
    Sketcher.Constraint("DistanceY", -1, 1, 74, 3, 7398.06),
    Sketcher.Constraint("DistanceY", -1, 1, 76, 3, 7597.94),
    Sketcher.Constraint("DistanceY", -1, 1, 77, 3, 7697.88),
    Sketcher.Constraint("DistanceY", -1, 1, 78, 3, 7797.82),
    Sketcher.Constraint("DistanceY", -1, 1, 79, 3, 7897.76),
])
pad14 = doc.addObject("PartDesign::Pad", "Pad013")
body14.addObject(pad14)
pad14.Profile = sketch14
pad14.Length = 1205

doc.recompute()
